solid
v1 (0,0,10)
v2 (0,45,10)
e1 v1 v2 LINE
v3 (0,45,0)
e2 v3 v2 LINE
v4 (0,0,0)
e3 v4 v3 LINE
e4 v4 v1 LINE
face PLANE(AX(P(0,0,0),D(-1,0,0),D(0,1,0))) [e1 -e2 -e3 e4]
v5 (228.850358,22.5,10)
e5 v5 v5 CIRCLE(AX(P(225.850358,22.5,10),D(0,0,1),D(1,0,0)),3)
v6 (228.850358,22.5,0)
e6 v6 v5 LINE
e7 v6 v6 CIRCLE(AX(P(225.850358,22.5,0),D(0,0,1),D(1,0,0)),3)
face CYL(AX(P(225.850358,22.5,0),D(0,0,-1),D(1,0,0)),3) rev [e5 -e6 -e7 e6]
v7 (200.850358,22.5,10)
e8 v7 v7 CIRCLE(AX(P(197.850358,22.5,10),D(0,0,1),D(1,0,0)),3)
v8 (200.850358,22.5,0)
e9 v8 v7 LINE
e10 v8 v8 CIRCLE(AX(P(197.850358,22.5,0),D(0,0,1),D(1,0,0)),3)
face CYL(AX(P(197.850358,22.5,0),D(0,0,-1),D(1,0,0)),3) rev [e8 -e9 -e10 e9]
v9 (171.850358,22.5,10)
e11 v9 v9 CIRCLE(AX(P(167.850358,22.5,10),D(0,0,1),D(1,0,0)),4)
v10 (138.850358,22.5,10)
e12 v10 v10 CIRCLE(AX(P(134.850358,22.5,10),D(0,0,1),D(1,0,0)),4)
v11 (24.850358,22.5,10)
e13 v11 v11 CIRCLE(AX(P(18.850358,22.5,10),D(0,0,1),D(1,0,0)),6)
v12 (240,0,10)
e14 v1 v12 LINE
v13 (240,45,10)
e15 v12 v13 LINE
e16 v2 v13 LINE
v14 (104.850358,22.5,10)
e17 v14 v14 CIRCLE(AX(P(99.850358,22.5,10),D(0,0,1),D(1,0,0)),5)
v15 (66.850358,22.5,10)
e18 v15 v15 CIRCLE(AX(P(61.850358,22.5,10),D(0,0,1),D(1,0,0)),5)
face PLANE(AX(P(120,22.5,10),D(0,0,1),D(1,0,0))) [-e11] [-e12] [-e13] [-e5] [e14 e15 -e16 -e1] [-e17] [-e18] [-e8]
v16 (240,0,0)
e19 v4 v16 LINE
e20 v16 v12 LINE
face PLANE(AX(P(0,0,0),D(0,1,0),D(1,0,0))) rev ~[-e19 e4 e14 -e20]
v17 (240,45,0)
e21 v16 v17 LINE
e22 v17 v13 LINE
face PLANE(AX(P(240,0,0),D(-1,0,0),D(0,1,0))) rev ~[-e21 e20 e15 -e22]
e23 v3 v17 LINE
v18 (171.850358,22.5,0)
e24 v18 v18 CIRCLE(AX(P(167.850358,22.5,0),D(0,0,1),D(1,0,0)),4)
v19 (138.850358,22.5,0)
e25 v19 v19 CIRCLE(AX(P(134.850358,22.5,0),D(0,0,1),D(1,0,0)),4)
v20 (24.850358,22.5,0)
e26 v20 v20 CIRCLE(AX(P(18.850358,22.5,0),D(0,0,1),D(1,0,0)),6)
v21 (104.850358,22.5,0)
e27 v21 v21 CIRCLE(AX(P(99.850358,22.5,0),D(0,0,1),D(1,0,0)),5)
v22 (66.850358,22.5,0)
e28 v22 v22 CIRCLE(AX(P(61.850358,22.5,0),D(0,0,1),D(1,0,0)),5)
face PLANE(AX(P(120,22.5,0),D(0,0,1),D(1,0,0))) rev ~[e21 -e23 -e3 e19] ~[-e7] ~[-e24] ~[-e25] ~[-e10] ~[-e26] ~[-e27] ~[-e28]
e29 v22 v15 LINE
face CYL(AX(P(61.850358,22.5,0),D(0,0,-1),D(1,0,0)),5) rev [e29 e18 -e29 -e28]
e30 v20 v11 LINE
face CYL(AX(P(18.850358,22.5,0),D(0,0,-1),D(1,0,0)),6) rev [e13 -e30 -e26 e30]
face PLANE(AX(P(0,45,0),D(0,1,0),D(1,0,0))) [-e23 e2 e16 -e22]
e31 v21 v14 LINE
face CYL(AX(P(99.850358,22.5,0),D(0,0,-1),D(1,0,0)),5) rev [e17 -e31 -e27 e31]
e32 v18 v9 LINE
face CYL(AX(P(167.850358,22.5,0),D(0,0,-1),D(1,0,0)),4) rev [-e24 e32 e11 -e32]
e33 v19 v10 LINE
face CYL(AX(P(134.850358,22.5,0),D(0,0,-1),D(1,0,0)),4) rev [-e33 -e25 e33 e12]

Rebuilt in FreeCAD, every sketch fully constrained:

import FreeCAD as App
import Part
import Sketcher


def add_polygon(sketch, points):
    """Adds a closed chain of lines whose ends are joined by coincident constraints."""
    first, n = sketch.GeometryCount, len(points)
    for a, b in zip(points, points[1:] + points[:1]):
        sketch.addGeometry(Part.LineSegment(App.Vector(*a, 0), App.Vector(*b, 0)), False)
    for i in range(n):
        sketch.addConstraint(Sketcher.Constraint("Coincident", first + i, 2, first + (i + 1) % n, 1))

doc = App.newDocument("Part")
body = doc.addObject("PartDesign::Body", "Body")

# Sketch on XY plane
sketch1 = body.newObject("Sketcher::SketchObject", "Sketch")
sketch1.AttachmentSupport = (doc.getObject("XY_Plane"), [""])
sketch1.MapMode = "FlatFace"
add_polygon(sketch1, [(0, 45), (0, 0), (240, 0), (240, 45)])  # lines 0-3
sketch1.addGeometry(Part.Circle(App.Vector(18.9, 22.5, 0), App.Vector(0, 0, 1), 6), False)  # 4
sketch1.addGeometry(Part.Circle(App.Vector(61.9, 22.5, 0), App.Vector(0, 0, 1), 5), False)  # 5
sketch1.addGeometry(Part.Circle(App.Vector(99.9, 22.5, 0), App.Vector(0, 0, 1), 5), False)  # 6
sketch1.addGeometry(Part.Circle(App.Vector(134.9, 22.5, 0), App.Vector(0, 0, 1), 4), False)  # 7
sketch1.addGeometry(Part.Circle(App.Vector(167.9, 22.5, 0), App.Vector(0, 0, 1), 4), False)  # 8
sketch1.addGeometry(Part.Circle(App.Vector(197.9, 22.5, 0), App.Vector(0, 0, 1), 3), False)  # 9
sketch1.addGeometry(Part.Circle(App.Vector(225.9, 22.5, 0), App.Vector(0, 0, 1), 3), False)  # 10
sketch1.addConstraint([
    Sketcher.Constraint("Vertical", 0),
    Sketcher.Constraint("Horizontal", 1),
    Sketcher.Constraint("Vertical", 2),
    Sketcher.Constraint("Horizontal", 3),
    Sketcher.Constraint("Coincident", 0, 2, -1, 1),
    Sketcher.Constraint("Equal", 5, 6),
    Sketcher.Constraint("Equal", 7, 8),
    Sketcher.Constraint("Equal", 9, 10),
    Sketcher.Constraint("Horizontal", 4, 3, 5, 3),
    Sketcher.Constraint("Horizontal", 5, 3, 6, 3),
    Sketcher.Constraint("Horizontal", 6, 3, 7, 3),
    Sketcher.Constraint("Horizontal", 7, 3, 8, 3),
    Sketcher.Constraint("Horizontal", 8, 3, 9, 3),
    Sketcher.Constraint("Horizontal", 9, 3, 10, 3),
    Sketcher.Constraint("Diameter", 4, 12.0),
    Sketcher.Constraint("Diameter", 5, 10.0),
    Sketcher.Constraint("Diameter", 7, 8.0),
    Sketcher.Constraint("Diameter", 9, 6.0),
    Sketcher.Constraint("DistanceX", 1, 1, 1, 2, 240.0),
    Sketcher.Constraint("DistanceY", 0, 2, 0, 1, 45.0),
    Sketcher.Constraint("DistanceX", 4, 3, 5, 3, 43.0),
    Sketcher.Constraint("DistanceX", 5, 3, 6, 3, 38.0),
    Sketcher.Constraint("DistanceX", 6, 3, 7, 3, 35.0),
    Sketcher.Constraint("DistanceX", 7, 3, 8, 3, 33.0),
    Sketcher.Constraint("DistanceX", 8, 3, 9, 3, 30.0),
    Sketcher.Constraint("DistanceX", 9, 3, 10, 3, 28.0),
    Sketcher.Constraint("DistanceY", -1, 1, 4, 3, 22.5),
    Sketcher.Constraint("DistanceX", -1, 1, 4, 3, 18.850358),
])
pad1 = body.newObject("PartDesign::Pad", "Pad")
pad1.Profile = sketch1
pad1.Length = 10

doc.recompute()
